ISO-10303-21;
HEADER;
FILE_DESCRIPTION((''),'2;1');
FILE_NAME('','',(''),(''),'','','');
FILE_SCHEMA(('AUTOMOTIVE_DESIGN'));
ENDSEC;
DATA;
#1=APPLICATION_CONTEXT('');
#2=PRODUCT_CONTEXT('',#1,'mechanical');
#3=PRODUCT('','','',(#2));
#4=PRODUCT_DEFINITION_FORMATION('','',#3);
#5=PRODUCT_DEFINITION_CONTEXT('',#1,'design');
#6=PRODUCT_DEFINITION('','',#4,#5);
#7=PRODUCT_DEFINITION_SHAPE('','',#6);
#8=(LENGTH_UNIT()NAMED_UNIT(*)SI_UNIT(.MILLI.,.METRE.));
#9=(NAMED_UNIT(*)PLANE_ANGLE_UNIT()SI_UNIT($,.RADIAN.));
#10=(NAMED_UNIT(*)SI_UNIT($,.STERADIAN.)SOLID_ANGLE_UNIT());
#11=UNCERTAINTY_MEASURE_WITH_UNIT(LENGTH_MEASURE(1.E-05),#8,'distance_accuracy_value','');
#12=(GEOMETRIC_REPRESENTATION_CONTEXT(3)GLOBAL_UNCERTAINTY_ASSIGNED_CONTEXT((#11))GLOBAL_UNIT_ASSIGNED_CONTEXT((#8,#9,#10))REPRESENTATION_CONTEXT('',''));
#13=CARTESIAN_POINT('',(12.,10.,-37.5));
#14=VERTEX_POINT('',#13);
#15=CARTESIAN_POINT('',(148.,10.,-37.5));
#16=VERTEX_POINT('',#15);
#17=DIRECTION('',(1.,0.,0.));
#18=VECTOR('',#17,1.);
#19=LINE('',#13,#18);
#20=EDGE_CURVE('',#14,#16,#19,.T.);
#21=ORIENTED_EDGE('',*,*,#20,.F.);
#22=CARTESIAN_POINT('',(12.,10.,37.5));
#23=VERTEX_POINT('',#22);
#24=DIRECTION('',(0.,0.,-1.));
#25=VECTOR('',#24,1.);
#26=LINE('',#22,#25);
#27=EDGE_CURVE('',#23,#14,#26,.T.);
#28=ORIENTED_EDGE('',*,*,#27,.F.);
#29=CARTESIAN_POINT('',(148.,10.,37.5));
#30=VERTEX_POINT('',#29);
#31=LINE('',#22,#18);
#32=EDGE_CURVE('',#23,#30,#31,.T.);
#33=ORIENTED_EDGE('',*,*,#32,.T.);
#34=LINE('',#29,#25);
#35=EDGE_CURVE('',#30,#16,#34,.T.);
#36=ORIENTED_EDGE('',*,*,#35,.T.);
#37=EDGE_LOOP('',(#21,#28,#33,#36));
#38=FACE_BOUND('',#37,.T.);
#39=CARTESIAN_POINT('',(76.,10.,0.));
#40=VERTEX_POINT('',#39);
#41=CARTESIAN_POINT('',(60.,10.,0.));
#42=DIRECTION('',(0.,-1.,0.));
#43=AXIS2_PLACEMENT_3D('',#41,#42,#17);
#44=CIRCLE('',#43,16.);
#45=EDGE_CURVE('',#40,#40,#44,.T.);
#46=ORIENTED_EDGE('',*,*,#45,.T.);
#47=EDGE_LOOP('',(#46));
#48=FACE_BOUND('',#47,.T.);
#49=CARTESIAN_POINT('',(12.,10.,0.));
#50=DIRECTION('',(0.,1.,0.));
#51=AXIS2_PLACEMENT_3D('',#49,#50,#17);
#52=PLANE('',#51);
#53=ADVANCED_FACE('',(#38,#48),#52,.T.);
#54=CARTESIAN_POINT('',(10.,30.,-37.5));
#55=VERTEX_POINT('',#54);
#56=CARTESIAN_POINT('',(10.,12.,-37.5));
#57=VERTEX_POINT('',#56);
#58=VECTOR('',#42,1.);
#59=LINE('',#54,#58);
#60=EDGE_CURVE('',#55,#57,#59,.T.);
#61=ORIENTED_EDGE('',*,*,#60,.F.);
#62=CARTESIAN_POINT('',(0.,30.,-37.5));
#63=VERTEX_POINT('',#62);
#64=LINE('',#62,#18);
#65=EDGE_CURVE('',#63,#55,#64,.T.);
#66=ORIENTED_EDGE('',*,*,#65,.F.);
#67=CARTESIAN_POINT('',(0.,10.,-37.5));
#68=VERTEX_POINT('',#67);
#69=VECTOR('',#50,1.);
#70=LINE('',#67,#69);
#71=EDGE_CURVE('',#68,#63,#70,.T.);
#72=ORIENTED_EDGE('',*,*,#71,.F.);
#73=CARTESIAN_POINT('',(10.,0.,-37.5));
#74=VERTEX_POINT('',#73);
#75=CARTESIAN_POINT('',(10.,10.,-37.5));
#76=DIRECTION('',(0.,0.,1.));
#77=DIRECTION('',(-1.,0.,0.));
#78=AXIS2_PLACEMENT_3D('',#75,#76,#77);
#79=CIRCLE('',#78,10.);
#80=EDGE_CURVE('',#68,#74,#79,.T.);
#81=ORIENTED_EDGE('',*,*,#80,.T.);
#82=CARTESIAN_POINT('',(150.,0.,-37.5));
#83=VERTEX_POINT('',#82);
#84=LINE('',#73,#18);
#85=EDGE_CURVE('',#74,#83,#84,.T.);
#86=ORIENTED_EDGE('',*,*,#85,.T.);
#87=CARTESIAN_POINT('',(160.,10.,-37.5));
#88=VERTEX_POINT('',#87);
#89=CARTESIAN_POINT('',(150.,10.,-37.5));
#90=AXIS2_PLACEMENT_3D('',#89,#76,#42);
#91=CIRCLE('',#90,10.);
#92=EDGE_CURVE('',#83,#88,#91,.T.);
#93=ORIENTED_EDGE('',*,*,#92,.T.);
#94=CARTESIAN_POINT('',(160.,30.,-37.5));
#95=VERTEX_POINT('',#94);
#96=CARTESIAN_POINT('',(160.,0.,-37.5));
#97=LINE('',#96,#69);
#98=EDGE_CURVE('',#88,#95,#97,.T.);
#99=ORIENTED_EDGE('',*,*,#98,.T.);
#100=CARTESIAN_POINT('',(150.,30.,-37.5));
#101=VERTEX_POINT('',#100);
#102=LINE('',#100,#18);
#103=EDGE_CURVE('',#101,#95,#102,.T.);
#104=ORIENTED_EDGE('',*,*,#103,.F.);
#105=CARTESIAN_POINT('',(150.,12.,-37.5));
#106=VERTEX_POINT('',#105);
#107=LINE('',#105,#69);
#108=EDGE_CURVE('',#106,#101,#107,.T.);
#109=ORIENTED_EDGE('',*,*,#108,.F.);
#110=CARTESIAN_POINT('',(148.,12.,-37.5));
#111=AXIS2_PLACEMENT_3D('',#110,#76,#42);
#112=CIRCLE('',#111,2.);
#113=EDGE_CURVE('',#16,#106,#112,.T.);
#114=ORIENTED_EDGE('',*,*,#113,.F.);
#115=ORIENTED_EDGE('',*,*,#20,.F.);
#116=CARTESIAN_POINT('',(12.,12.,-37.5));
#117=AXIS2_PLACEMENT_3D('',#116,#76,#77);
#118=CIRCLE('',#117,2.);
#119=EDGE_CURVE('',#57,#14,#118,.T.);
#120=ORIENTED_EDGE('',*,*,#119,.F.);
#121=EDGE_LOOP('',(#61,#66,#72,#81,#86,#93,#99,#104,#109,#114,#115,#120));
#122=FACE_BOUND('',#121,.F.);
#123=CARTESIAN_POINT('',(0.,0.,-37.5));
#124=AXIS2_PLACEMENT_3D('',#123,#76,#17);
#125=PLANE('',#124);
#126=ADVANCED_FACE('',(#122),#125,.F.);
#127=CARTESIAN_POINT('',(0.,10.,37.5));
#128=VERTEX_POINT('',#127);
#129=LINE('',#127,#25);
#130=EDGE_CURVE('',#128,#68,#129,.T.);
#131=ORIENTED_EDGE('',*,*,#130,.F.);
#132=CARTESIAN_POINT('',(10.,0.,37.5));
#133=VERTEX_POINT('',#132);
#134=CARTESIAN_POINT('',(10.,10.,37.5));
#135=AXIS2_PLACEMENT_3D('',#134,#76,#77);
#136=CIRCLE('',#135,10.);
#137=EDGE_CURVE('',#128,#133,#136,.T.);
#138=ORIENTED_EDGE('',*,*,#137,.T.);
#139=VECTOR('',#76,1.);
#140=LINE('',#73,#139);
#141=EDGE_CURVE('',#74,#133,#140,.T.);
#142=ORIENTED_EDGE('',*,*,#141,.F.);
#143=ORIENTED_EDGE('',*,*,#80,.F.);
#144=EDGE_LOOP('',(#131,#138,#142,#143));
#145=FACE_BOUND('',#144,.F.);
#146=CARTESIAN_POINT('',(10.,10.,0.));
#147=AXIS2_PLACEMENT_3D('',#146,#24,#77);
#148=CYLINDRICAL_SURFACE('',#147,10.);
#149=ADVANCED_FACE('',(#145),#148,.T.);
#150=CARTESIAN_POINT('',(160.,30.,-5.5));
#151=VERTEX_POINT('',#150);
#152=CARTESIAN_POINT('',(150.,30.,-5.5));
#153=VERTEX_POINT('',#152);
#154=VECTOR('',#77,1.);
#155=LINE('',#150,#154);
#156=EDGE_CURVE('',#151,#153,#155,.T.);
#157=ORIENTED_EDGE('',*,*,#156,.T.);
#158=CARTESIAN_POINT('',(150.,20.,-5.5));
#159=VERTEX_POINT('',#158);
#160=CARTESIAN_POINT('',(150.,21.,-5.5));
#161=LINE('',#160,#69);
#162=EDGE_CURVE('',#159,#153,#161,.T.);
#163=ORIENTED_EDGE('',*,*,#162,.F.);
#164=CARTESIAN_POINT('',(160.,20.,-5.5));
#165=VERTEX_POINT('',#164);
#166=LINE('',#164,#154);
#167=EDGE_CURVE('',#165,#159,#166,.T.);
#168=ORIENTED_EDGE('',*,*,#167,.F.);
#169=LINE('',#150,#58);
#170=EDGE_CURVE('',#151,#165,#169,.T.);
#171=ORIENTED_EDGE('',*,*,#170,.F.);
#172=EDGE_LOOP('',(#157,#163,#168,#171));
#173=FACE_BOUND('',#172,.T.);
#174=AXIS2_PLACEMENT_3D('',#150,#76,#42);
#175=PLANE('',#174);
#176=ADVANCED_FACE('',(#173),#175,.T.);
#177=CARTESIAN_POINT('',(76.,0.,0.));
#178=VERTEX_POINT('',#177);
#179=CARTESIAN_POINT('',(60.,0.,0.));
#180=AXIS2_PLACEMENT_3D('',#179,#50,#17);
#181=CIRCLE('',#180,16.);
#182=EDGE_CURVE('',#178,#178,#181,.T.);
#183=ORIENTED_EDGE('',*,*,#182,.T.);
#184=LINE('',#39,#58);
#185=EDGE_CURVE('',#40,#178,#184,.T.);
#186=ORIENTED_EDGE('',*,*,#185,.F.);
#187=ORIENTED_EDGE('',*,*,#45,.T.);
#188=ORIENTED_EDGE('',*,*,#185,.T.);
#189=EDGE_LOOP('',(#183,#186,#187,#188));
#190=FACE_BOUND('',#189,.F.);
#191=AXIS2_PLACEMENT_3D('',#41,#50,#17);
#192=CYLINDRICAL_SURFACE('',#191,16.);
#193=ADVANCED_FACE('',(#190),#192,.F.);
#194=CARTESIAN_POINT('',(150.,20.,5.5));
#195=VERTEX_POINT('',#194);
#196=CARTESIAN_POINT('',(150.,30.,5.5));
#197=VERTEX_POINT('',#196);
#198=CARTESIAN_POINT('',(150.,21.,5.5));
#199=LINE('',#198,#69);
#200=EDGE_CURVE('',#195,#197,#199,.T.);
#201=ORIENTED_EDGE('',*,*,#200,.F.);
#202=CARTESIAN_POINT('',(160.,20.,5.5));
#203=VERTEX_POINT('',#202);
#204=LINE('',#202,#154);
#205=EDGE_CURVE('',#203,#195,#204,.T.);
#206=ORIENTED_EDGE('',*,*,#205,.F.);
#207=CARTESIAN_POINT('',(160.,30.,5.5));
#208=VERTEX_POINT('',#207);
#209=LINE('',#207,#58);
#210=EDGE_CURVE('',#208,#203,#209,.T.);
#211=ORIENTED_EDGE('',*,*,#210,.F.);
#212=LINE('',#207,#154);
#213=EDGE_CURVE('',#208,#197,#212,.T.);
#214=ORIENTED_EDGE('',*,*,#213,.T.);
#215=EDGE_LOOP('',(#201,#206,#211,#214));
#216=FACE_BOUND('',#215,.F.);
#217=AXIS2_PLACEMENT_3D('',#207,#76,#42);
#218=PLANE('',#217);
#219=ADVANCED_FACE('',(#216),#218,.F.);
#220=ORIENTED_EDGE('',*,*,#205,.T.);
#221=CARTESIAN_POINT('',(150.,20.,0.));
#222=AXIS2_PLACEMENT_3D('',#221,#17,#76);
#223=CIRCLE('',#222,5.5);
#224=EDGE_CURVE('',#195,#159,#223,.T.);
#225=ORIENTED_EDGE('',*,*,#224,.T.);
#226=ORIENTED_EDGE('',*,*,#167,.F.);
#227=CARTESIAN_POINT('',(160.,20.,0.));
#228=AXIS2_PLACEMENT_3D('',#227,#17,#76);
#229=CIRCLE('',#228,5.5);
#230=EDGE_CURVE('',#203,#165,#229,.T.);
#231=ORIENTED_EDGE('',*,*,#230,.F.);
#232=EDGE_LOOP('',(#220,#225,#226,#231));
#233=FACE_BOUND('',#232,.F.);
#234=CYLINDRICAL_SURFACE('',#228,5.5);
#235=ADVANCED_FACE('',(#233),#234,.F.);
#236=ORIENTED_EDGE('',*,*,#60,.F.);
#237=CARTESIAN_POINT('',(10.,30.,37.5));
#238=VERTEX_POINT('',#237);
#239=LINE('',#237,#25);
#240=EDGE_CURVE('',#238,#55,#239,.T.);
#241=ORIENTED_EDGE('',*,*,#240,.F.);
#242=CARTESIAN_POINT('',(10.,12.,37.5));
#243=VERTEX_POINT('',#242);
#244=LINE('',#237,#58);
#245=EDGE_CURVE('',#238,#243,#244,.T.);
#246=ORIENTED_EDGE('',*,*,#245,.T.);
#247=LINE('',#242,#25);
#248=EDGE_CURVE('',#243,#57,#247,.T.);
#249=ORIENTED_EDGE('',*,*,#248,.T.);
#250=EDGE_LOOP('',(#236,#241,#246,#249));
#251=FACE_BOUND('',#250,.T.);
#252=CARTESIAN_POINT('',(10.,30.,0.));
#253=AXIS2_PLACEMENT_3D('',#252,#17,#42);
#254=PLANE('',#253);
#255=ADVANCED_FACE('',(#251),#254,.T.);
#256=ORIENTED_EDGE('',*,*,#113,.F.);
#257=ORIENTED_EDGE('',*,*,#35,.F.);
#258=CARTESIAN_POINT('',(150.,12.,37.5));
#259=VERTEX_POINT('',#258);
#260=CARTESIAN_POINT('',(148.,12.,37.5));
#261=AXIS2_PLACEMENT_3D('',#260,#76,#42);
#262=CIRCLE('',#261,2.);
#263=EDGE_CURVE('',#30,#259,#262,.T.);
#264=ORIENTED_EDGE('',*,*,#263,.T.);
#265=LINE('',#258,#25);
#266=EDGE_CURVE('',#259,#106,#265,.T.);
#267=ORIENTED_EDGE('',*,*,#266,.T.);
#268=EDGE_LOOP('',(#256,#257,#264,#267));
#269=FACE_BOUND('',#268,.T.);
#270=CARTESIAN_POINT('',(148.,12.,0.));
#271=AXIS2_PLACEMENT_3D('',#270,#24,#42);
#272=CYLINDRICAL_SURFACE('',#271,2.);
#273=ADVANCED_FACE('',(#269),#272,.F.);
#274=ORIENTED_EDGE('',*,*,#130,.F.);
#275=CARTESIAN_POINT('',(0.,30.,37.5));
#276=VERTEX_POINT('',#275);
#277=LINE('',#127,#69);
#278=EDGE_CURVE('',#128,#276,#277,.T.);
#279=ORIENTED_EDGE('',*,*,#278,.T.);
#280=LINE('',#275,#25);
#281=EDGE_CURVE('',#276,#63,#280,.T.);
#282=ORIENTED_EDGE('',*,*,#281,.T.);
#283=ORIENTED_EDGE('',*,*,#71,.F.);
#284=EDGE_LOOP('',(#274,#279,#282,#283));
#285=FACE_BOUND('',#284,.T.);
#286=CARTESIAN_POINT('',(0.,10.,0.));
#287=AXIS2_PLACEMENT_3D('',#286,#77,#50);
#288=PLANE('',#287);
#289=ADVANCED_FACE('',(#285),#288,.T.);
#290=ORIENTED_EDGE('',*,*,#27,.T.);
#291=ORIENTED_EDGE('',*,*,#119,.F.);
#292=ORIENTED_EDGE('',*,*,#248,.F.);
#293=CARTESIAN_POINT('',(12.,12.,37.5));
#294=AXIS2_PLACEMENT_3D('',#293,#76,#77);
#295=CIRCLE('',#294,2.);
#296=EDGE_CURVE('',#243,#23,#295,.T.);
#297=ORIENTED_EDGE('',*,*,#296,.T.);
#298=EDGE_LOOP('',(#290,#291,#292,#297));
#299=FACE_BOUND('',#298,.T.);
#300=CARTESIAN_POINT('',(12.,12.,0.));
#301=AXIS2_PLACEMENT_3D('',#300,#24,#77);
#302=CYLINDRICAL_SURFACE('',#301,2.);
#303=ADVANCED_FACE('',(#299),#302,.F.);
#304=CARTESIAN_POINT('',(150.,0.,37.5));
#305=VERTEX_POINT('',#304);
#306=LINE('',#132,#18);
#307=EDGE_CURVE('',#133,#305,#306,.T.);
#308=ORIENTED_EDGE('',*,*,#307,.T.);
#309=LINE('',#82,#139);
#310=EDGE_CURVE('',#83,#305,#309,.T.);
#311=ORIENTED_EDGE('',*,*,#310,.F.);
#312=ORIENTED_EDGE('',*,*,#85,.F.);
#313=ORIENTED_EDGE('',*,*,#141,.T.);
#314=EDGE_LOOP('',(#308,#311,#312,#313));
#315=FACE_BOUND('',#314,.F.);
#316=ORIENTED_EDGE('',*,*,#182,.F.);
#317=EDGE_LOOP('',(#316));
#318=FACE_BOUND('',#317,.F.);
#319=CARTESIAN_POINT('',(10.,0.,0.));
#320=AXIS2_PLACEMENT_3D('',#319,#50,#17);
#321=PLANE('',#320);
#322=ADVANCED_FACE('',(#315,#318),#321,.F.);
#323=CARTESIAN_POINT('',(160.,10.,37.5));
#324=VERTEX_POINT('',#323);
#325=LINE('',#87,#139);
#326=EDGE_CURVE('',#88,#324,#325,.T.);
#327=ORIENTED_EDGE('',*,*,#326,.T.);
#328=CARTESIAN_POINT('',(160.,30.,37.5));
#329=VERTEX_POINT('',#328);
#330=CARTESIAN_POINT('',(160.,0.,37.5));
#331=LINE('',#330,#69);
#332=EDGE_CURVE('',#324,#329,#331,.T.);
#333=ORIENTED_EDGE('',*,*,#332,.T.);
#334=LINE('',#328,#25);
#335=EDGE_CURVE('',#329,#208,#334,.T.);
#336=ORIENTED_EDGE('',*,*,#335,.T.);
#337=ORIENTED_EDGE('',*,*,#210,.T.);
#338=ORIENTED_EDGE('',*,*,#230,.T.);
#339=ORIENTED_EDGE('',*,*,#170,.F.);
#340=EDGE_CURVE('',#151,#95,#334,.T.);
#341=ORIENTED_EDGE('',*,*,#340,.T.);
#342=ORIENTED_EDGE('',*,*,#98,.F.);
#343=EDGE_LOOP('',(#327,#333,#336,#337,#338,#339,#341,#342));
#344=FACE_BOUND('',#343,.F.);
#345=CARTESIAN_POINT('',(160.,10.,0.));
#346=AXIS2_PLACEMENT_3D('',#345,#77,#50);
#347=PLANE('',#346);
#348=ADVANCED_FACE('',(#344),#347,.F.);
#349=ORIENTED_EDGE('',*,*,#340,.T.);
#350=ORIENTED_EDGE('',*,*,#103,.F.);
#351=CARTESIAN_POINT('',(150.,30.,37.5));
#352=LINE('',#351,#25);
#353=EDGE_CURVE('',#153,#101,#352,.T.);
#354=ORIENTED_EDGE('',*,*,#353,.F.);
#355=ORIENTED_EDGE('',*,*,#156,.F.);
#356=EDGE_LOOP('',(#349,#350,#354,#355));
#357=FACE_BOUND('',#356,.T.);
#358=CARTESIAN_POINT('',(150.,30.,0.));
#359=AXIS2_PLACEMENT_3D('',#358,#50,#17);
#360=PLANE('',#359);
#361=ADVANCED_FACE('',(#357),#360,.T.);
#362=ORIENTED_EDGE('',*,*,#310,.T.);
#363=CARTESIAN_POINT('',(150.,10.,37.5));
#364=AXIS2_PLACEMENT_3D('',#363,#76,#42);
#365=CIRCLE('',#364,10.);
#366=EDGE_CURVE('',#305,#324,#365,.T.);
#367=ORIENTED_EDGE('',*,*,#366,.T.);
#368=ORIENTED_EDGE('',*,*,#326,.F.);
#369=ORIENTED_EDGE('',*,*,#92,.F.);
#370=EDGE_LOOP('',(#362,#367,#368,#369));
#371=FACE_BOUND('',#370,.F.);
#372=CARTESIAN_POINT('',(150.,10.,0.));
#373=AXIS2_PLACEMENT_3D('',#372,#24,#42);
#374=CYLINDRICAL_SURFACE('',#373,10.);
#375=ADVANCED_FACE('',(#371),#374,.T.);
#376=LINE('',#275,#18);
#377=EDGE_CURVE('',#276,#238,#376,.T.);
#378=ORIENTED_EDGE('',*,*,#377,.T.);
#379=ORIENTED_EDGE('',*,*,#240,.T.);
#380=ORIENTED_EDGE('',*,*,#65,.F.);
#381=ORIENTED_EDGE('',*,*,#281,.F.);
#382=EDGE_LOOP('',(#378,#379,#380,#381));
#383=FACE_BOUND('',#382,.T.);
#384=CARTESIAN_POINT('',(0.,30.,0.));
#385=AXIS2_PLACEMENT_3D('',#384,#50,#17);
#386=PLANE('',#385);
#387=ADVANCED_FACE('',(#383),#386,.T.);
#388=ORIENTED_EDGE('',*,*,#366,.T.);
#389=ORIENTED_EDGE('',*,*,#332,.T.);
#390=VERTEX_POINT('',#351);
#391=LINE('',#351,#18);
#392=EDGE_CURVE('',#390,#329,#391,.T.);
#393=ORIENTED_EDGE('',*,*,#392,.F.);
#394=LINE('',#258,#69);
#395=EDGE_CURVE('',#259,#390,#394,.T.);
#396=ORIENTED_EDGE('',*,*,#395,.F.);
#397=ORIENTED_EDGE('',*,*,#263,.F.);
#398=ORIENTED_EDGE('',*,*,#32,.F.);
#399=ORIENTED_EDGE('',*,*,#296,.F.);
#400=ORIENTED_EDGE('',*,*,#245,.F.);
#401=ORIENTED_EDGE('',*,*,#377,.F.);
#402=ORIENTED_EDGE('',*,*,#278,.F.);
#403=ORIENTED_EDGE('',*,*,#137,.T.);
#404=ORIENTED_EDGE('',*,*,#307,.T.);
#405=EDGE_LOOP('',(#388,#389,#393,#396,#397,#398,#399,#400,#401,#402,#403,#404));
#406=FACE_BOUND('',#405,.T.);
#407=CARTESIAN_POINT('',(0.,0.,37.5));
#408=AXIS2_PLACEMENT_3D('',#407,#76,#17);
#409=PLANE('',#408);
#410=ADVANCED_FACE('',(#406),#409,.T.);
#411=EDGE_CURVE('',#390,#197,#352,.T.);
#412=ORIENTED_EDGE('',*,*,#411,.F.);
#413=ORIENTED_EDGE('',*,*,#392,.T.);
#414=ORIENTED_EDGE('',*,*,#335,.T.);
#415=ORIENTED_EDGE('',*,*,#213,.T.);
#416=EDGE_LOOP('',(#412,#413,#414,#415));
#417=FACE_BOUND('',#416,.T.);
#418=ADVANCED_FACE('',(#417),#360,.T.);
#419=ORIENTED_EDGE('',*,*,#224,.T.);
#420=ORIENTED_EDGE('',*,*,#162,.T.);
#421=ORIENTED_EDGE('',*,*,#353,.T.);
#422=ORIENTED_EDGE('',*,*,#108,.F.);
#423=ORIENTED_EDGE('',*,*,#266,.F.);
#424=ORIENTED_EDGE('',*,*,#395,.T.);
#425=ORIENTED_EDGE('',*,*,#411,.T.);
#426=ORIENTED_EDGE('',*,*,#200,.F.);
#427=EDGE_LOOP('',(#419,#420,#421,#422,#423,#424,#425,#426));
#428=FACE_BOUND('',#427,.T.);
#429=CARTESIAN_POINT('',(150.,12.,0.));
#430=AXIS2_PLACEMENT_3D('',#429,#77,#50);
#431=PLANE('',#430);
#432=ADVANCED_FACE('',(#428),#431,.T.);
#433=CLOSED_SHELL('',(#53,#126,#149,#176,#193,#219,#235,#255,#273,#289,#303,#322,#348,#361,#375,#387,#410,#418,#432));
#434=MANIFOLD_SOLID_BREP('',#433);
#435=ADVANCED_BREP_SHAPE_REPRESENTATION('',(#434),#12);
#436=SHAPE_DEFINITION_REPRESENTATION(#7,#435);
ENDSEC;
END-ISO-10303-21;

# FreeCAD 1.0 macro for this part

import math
import FreeCAD as App
import Part
import Sketcher

V = App.Vector
Q = App.Units.Quantity

doc = App.newDocument("Part")
body = doc.addObject("PartDesign::Body", "Body")

# Sketch on XY plane
sketch1 = body.newObject("Sketcher::SketchObject", "Sketch")
sketch1.AttachmentSupport = (doc.getObject("XY_Plane"), [""])
sketch1.MapMode = "FlatFace"
sketch1.addGeometry([
    Part.ArcOfCircle(Part.Circle(V(10, 10, 0), V(0, 0, 1), 10), math.radians(180), math.radians(270)),  # 0
    Part.LineSegment(V(10, 0, 0), V(150, 0, 0)),  # 1
    Part.ArcOfCircle(Part.Circle(V(150, 10, 0), V(0, 0, 1), 10), math.radians(-90), math.radians(0)),  # 2
    Part.LineSegment(V(160, 10, 0), V(160, 30, 0)),  # 3
    Part.LineSegment(V(160, 30, 0), V(150, 30, 0)),  # 4
    Part.LineSegment(V(150, 30, 0), V(150, 12, 0)),  # 5
    Part.ArcOfCircle(Part.Circle(V(148, 12, 0), V(0, 0, 1), 2), math.radians(-90), math.radians(0)),  # 6
    Part.LineSegment(V(148, 10, 0), V(12, 10, 0)),  # 7
    Part.ArcOfCircle(Part.Circle(V(12, 12, 0), V(0, 0, 1), 2), math.radians(180), math.radians(270)),  # 8
    Part.LineSegment(V(10, 12, 0), V(10, 30, 0)),  # 9
    Part.LineSegment(V(10, 30, 0), V(0, 30, 0)),  # 10
    Part.LineSegment(V(0, 30, 0), V(0, 10, 0)),  # 11
], False)
sketch1.addConstraint([
    Sketcher.Constraint("Tangent", 0, 2, 1, 1),
    Sketcher.Constraint("Tangent", 1, 2, 2, 1),
    Sketcher.Constraint("Tangent", 2, 2, 3, 1),
    Sketcher.Constraint("Coincident", 3, 2, 4, 1),
    Sketcher.Constraint("Coincident", 4, 2, 5, 1),
    Sketcher.Constraint("Tangent", 5, 2, 6, 2),
    Sketcher.Constraint("Tangent", 6, 1, 7, 1),
    Sketcher.Constraint("Tangent", 7, 2, 8, 2),
    Sketcher.Constraint("Tangent", 8, 1, 9, 1),
    Sketcher.Constraint("Coincident", 9, 2, 10, 1),
    Sketcher.Constraint("Coincident", 10, 2, 11, 1),
    Sketcher.Constraint("Tangent", 11, 2, 0, 1),
    Sketcher.Constraint("Horizontal", 1),
    Sketcher.Constraint("Vertical", 3),
    Sketcher.Constraint("Horizontal", 4),
    Sketcher.Constraint("Vertical", 5),
    Sketcher.Constraint("Horizontal", 7),
    Sketcher.Constraint("Vertical", 9),
    Sketcher.Constraint("Horizontal", 10),
    Sketcher.Constraint("Vertical", 11),
    Sketcher.Constraint("Equal", 0, 2),
    Sketcher.Constraint("Equal", 6, 8),
    Sketcher.Constraint("PointOnObject", 0, 2, -1),
    Sketcher.Constraint("PointOnObject", 10, 2, -2),
    Sketcher.Constraint("Horizontal", 2, 2, 6, 1),
    Sketcher.Constraint("Horizontal", 4, 2, 9, 2),
    Sketcher.Constraint("Vertical", 1, 2, 4, 2),
    Sketcher.Constraint("Vertical", 0, 2, 8, 1),
    Sketcher.Constraint("Radius", 0, Q("10 mm")),
    Sketcher.Constraint("Radius", 6, Q("2 mm")),
    Sketcher.Constraint("DistanceX", 1, 1, 1, 2, Q("140 mm")),
    Sketcher.Constraint("DistanceY", 3, 1, 3, 2, Q("20 mm")),
])
pad1 = body.newObject("PartDesign::Pad", "Pad")
pad1.Profile = sketch1
pad1.Length = 75
pad1.Midplane = True

# Sketch on YZ plane
sketch2 = body.newObject("Sketcher::SketchObject", "Sketch001")
sketch2.AttachmentSupport = (doc.getObject("YZ_Plane"), [""])
sketch2.MapMode = "FlatFace"
sketch2.AttachmentOffset = App.Placement(V(0, 0, 160), App.Rotation())
sketch2.addGeometry([
    Part.LineSegment(V(30, -6, 0), V(30, 6, 0)),
    Part.LineSegment(V(30, 6, 0), V(20, 6, 0)),
    Part.ArcOfCircle(Part.Circle(V(20, 0, 0), V(0, 0, 1), 6), math.radians(90), math.radians(270)),
    Part.LineSegment(V(20, -6, 0), V(30, -6, 0)),
], False)
sketch2.addConstraint([
    Sketcher.Constraint("Coincident", 0, 2, 1, 1),
    Sketcher.Constraint("Tangent", 1, 2, 2, 1),
    Sketcher.Constraint("Tangent", 2, 2, 3, 1),
    Sketcher.Constraint("Coincident", 3, 2, 0, 1),
    Sketcher.Constraint("Vertical", 0),
    Sketcher.Constraint("Horizontal", 1),
    Sketcher.Constraint("Horizontal", 3),
    Sketcher.Constraint("PointOnObject", 2, 3, -1),
    Sketcher.Constraint("Radius", 2, Q("5.5 mm")),
    Sketcher.Constraint("DistanceX", 1, 2, 1, 1, Q("10 mm")),
    Sketcher.Constraint("DistanceX", -1, 1, 2, 3, Q("20 mm")),
])
pocket1 = body.newObject("PartDesign::Pocket", "Pocket")
pocket1.Profile = sketch2
pocket1.Length = 75

# Sketch on XZ plane
sketch3 = body.newObject("Sketcher::SketchObject", "Sketch002")
sketch3.AttachmentSupport = (doc.getObject("XZ_Plane"), [""])
sketch3.MapMode = "FlatFace"
sketch3.AttachmentOffset = App.Placement(V(0, 0, -10), App.Rotation())
sketch3.addGeometry(Part.Circle(V(60, 0, 0), V(0, 0, 1), 16), False)
sketch3.addConstraint([
    Sketcher.Constraint("PointOnObject", 0, 3, -1),
    Sketcher.Constraint("Diameter", 0, Q("32 mm")),
    Sketcher.Constraint("DistanceX", -1, 1, 0, 3, Q("60 mm")),
])
pocket2 = body.newObject("PartDesign::Pocket", "Pocket001")
pocket2.Profile = sketch3
pocket2.Type = "ThroughAll"
pocket2.Reversed = True

doc.recompute()
